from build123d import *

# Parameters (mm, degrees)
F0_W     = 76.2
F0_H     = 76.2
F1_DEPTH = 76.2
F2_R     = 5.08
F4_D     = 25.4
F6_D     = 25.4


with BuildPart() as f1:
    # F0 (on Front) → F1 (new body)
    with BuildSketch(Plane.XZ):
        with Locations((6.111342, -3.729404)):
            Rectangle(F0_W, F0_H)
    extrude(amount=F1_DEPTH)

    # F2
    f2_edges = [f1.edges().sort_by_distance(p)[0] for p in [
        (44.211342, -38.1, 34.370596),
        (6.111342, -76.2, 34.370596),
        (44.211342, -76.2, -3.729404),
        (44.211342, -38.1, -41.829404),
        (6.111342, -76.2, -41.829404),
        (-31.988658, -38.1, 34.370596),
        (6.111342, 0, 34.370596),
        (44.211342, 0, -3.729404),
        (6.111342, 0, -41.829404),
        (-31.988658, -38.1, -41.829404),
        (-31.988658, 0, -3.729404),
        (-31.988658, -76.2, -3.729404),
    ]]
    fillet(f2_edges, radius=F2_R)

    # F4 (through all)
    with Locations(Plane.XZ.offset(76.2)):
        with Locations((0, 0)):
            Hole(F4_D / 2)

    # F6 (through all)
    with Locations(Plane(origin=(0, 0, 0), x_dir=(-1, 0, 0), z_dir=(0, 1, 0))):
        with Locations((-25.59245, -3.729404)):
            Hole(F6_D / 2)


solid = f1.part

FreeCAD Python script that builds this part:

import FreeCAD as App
import Part
import Sketcher
from FreeCAD import Vector
Q = App.Units.Quantity

doc = App.newDocument("Part")
body = doc.addObject("PartDesign::Body", "Body")

sketch1 = doc.addObject("Sketcher::SketchObject", "Sketch")
body.addObject(sketch1)
sketch1.AttachmentSupport = (doc.XZ_Plane, [""])
sketch1.MapMode = "FlatFace"
sketch1.addGeometry([
    Part.LineSegment(Vector(-32, 34, 0), Vector(-32, -42, 0)),
    Part.LineSegment(Vector(-32, -42, 0), Vector(44, -42, 0)),
    Part.LineSegment(Vector(44, -42, 0), Vector(44, 34, 0)),
    Part.LineSegment(Vector(44, 34, 0), Vector(-32, 34, 0)),
], False)
sketch1.addConstraint([
    Sketcher.Constraint("Coincident", 0, 2, 1, 1),
    Sketcher.Constraint("Coincident", 1, 2, 2, 1),
    Sketcher.Constraint("Coincident", 2, 2, 3, 1),
    Sketcher.Constraint("Coincident", 3, 2, 0, 1),
    Sketcher.Constraint("Vertical", 0),
    Sketcher.Constraint("Horizontal", 1),
    Sketcher.Constraint("Vertical", 2),
    Sketcher.Constraint("Horizontal", 3),
    Sketcher.Constraint("Equal", 3, 0),
    Sketcher.Constraint("DistanceX", 1, 1, 1, 2, Q("3 in")),
    Sketcher.Constraint("DistanceX", 0, 2, -1, 1, 31.988658),
    Sketcher.Constraint("DistanceY", 0, 2, -1, 1, 41.829404),
])
pad1 = doc.addObject("PartDesign::Pad", "Pad")
body.addObject(pad1)
pad1.Profile = sketch1
pad1.Length = Q("3 in")
doc.recompute()

fillet = doc.addObject("PartDesign::Fillet", "Fillet")
body.addObject(fillet)
fillet.Base = (pad1, ["Edge1"])
fillet.UseAllEdges = True
fillet.Radius = Q("0.2 in")

sketch2 = doc.addObject("Sketcher::SketchObject", "Sketch001")
body.addObject(sketch2)
sketch2.AttachmentSupport = (doc.XZ_Plane, [""])
sketch2.MapMode = "FlatFace"
sketch2.AttachmentOffset = App.Placement(Vector(0, 0, 3 * 25.4), App.Rotation())
sketch2.addGeometry(Part.Circle(Vector(0, 0, 0), Vector(0, 0, 1), 13), False)
sketch2.addConstraint([
    Sketcher.Constraint("Coincident", 0, 3, -1, 1),
    Sketcher.Constraint("Diameter", 0, Q("1 in")),
])
doc.recompute()
hole = doc.addObject("PartDesign::Hole", "Hole")
body.addObject(hole)
hole.Profile = sketch2
hole.ThreadType = "None"
hole.Diameter = Q("1 in")
hole.DepthType = "ThroughAll"

sketch3 = doc.addObject("Sketcher::SketchObject", "Sketch002")
body.addObject(sketch3)
sketch3.AttachmentSupport = (doc.XZ_Plane, [""])
sketch3.MapMode = "FlatFace"
sketch3.addGeometry(Part.Circle(Vector(26, -4, 0), Vector(0, 0, 1), 13), False)
sketch3.addConstraint([
    Sketcher.Constraint("Diameter", 0, Q("1 in")),
    Sketcher.Constraint("DistanceX", -1, 1, 0, 3, 25.59245),
    Sketcher.Constraint("DistanceY", 0, 3, -1, 1, 3.729404),
])
doc.recompute()
hole2 = doc.addObject("PartDesign::Hole", "Hole001")
body.addObject(hole2)
hole2.Profile = sketch3
hole2.ThreadType = "None"
hole2.Diameter = Q("1 in")
hole2.DepthType = "ThroughAll"
hole2.Reversed = True

doc.recompute()
